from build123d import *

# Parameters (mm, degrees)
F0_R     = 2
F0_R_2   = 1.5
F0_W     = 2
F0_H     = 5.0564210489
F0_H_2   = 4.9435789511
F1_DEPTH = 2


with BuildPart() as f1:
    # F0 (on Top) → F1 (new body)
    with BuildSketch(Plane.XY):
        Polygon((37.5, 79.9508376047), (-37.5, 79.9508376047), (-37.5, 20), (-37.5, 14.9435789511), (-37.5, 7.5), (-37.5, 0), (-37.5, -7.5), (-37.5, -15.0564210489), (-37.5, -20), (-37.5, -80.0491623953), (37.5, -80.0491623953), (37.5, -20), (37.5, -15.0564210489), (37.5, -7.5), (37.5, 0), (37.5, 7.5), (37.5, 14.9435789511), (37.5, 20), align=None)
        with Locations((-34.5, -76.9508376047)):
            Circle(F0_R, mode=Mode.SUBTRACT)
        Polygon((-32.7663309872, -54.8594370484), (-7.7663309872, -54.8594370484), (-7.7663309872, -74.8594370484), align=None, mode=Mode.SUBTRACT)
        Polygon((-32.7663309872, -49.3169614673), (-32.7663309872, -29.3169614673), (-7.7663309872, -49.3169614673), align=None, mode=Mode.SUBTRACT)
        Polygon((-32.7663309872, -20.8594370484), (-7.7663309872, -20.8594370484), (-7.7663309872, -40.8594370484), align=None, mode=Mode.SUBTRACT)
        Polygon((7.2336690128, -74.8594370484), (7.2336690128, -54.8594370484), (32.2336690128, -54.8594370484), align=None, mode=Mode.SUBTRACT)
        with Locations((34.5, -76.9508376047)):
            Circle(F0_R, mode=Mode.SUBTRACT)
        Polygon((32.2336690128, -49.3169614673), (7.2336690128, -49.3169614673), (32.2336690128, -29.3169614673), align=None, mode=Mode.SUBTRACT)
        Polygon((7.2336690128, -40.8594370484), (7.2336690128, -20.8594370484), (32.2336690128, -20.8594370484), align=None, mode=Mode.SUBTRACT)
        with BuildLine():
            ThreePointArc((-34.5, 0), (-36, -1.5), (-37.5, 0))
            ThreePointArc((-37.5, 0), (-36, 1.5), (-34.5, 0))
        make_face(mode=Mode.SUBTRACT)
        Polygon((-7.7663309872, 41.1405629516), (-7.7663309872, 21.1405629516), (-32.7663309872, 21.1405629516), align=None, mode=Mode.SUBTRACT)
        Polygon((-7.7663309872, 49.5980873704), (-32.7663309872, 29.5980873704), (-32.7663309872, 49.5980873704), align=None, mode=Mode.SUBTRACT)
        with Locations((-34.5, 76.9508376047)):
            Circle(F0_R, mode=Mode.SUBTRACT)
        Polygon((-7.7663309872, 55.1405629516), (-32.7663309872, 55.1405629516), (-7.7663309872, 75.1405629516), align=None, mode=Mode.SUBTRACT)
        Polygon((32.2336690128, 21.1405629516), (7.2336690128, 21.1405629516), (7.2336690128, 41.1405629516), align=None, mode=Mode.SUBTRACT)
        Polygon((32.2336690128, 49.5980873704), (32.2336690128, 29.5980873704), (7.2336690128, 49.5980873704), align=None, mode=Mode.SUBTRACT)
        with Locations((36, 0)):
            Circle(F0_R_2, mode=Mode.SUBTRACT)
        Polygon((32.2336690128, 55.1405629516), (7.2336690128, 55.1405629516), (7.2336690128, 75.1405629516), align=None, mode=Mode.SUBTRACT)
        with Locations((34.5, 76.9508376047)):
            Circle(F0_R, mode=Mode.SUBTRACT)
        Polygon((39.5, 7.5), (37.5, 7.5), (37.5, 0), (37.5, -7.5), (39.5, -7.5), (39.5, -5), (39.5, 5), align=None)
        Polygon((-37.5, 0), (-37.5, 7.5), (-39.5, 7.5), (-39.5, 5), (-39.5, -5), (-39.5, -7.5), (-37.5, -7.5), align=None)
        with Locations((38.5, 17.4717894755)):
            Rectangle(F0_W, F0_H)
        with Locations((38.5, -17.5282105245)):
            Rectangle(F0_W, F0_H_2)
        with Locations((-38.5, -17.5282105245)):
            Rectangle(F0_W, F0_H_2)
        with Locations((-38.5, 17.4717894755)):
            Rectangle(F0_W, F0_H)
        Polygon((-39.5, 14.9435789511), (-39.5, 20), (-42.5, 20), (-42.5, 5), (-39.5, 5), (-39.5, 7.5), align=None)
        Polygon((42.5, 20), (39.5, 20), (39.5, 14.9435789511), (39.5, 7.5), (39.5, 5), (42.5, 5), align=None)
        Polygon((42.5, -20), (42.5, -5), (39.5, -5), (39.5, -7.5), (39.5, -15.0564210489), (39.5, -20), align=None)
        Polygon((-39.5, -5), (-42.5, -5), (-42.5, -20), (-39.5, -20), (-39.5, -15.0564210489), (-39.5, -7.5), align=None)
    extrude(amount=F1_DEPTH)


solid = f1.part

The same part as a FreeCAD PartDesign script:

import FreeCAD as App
import Part
import Sketcher

V = App.Vector
Q = App.Units.Quantity


def add_polygon(sketch, points):
    """Adds a closed chain of lines whose ends are joined by coincident constraints."""
    first, n = sketch.GeometryCount, len(points)
    for a, b in zip(points, points[1:] + points[:1]):
        sketch.addGeometry(Part.LineSegment(App.Vector(*a, 0), App.Vector(*b, 0)), False)
    for i in range(n):
        sketch.addConstraint(Sketcher.Constraint("Coincident", first + i, 2, first + (i + 1) % n, 1))

doc = App.newDocument("Part")
params = doc.addObject("Spreadsheet::Sheet", "Params")
for row, (alias, value) in enumerate([
    ("sketch1_diameter", "4 mm"),
    ("sketch1_diameter2", "3 mm"),
    ("sketch1_width", "75 mm"),
    ("sketch1_width2", "2 mm"),
    ("sketch1_width3", "3 mm"),
    ("pad1_length", "2 mm"),
], start=1):
    params.set(f"A{row}", alias)
    params.set(f"B{row}", "=" + value)
    params.setAlias(f"B{row}", alias)

body = doc.addObject("PartDesign::Body", "Body")

# Sketch on XY plane
sketch1 = body.newObject("Sketcher::SketchObject", "Sketch")
sketch1.AttachmentSupport = (doc.getObject("XY_Plane"), [""])
sketch1.MapMode = "FlatFace"
add_polygon(sketch1, [(37.5, 80), (-37.5, 80), (-37.5, 20), (-39.5, 20), (-42.5, 20), (-42.5, 5), (-39.5, 5), (-39.5, -5), (-42.5, -5), (-42.5, -20), (-39.5, -20), (-37.5, -20), (-37.5, -80), (37.5, -80), (37.5, -20), (39.5, -20), (42.5, -20), (42.5, -5), (39.5, -5), (39.5, 5), (42.5, 5), (42.5, 20), (39.5, 20), (37.5, 20)])  # lines 0-23
add_polygon(sketch1, [(-39.5, -7.5), (-37.5, -7.5), (-37.5, -15.1), (-39.5, -15.1)])  # lines 24-27
add_polygon(sketch1, [(39.5, -15.1), (37.5, -15.1), (37.5, -7.5), (39.5, -7.5)])  # lines 28-31
add_polygon(sketch1, [(39.5, 7.5), (37.5, 7.5), (37.5, 14.9), (39.5, 14.9)])  # lines 32-35
add_polygon(sketch1, [(-39.5, 14.9), (-37.5, 14.9), (-37.5, 7.5), (-39.5, 7.5)])  # lines 36-39
sketch1.addGeometry(Part.Circle(V(-34.5, -77, 0), V(0, 0, 1), 2), False)  # 40
add_polygon(sketch1, [(-7.8, -74.9), (-32.8, -54.9), (-7.8, -54.9)])  # lines 41-43
add_polygon(sketch1, [(-7.8, -49.3), (-32.8, -49.3), (-32.8, -29.3)])  # lines 44-46
add_polygon(sketch1, [(-7.8, -40.9), (-32.8, -20.9), (-7.8, -20.9)])  # lines 47-49
add_polygon(sketch1, [(32.2, -54.9), (7.2, -74.9), (7.2, -54.9)])  # lines 50-52
sketch1.addGeometry(Part.Circle(V(34.5, -77, 0), V(0, 0, 1), 2), False)  # 53
add_polygon(sketch1, [(32.2, -29.3), (32.2, -49.3), (7.2, -49.3)])  # lines 54-56
add_polygon(sketch1, [(32.2, -20.9), (7.2, -40.9), (7.2, -20.9)])  # lines 57-59
sketch1.addGeometry(Part.Circle(V(-36, 0, 0), V(0, 0, 1), 1.5), False)  # 60
add_polygon(sketch1, [(-32.8, 21.1), (-7.8, 41.1), (-7.8, 21.1)])  # lines 61-63
add_polygon(sketch1, [(-32.8, 49.6), (-7.8, 49.6), (-32.8, 29.6)])  # lines 64-66
sketch1.addGeometry(Part.Circle(V(-34.5, 77, 0), V(0, 0, 1), 2), False)  # 67
add_polygon(sketch1, [(-7.8, 75.1), (-7.8, 55.1), (-32.8, 55.1)])  # lines 68-70
sketch1.addGeometry(Part.Circle(V(36, 0, 0), V(0, 0, 1), 1.5), False)  # 71
add_polygon(sketch1, [(7.2, 41.1), (32.2, 21.1), (7.2, 21.1)])  # lines 72-74
add_polygon(sketch1, [(7.2, 49.6), (32.2, 49.6), (32.2, 29.6)])  # lines 75-77
add_polygon(sketch1, [(7.2, 75.1), (32.2, 55.1), (7.2, 55.1)])  # lines 78-80
sketch1.addGeometry(Part.Circle(V(34.5, 77, 0), V(0, 0, 1), 2), False)  # 81
sketch1.addConstraint(Sketcher.Constraint("Horizontal", 0))
sketch1.addConstraint(Sketcher.Constraint("Vertical", 1))
sketch1.addConstraint(Sketcher.Constraint("Horizontal", 2))
sketch1.addConstraint(Sketcher.Constraint("Horizontal", 3))
sketch1.addConstraint(Sketcher.Constraint("Vertical", 4))
sketch1.addConstraint(Sketcher.Constraint("Horizontal", 5))
sketch1.addConstraint(Sketcher.Constraint("Vertical", 6))
sketch1.addConstraint(Sketcher.Constraint("Horizontal", 7))
sketch1.addConstraint(Sketcher.Constraint("Vertical", 8))
sketch1.addConstraint(Sketcher.Constraint("Horizontal", 9))
sketch1.addConstraint(Sketcher.Constraint("Horizontal", 10))
sketch1.addConstraint(Sketcher.Constraint("Vertical", 11))
sketch1.addConstraint(Sketcher.Constraint("Horizontal", 12))
sketch1.addConstraint(Sketcher.Constraint("Vertical", 13))
sketch1.addConstraint(Sketcher.Constraint("Horizontal", 14))
sketch1.addConstraint(Sketcher.Constraint("Horizontal", 15))
sketch1.addConstraint(Sketcher.Constraint("Vertical", 16))
sketch1.addConstraint(Sketcher.Constraint("Horizontal", 17))
sketch1.addConstraint(Sketcher.Constraint("Vertical", 18))
sketch1.addConstraint(Sketcher.Constraint("Horizontal", 19))
sketch1.addConstraint(Sketcher.Constraint("Vertical", 20))
sketch1.addConstraint(Sketcher.Constraint("Horizontal", 21))
sketch1.addConstraint(Sketcher.Constraint("Horizontal", 22))
sketch1.addConstraint(Sketcher.Constraint("Vertical", 23))
sketch1.addConstraint(Sketcher.Constraint("Horizontal", 24))
sketch1.addConstraint(Sketcher.Constraint("Vertical", 25))
sketch1.addConstraint(Sketcher.Constraint("Horizontal", 26))
sketch1.addConstraint(Sketcher.Constraint("Vertical", 27))
sketch1.addConstraint(Sketcher.Constraint("Horizontal", 28))
sketch1.addConstraint(Sketcher.Constraint("Vertical", 29))
sketch1.addConstraint(Sketcher.Constraint("Horizontal", 30))
sketch1.addConstraint(Sketcher.Constraint("Vertical", 31))
sketch1.addConstraint(Sketcher.Constraint("Horizontal", 32))
sketch1.addConstraint(Sketcher.Constraint("Vertical", 33))
sketch1.addConstraint(Sketcher.Constraint("Horizontal", 34))
sketch1.addConstraint(Sketcher.Constraint("Vertical", 35))
sketch1.addConstraint(Sketcher.Constraint("Horizontal", 36))
sketch1.addConstraint(Sketcher.Constraint("Vertical", 37))
sketch1.addConstraint(Sketcher.Constraint("Horizontal", 38))
sketch1.addConstraint(Sketcher.Constraint("Vertical", 39))
sketch1.addConstraint(Sketcher.Constraint("Horizontal", 42))
sketch1.addConstraint(Sketcher.Constraint("Vertical", 43))
sketch1.addConstraint(Sketcher.Constraint("Horizontal", 44))
sketch1.addConstraint(Sketcher.Constraint("Vertical", 45))
sketch1.addConstraint(Sketcher.Constraint("Horizontal", 48))
sketch1.addConstraint(Sketcher.Constraint("Vertical", 49))
sketch1.addConstraint(Sketcher.Constraint("Vertical", 51))
sketch1.addConstraint(Sketcher.Constraint("Horizontal", 52))
sketch1.addConstraint(Sketcher.Constraint("Vertical", 54))
sketch1.addConstraint(Sketcher.Constraint("Horizontal", 55))
sketch1.addConstraint(Sketcher.Constraint("Vertical", 58))
sketch1.addConstraint(Sketcher.Constraint("Horizontal", 59))
sketch1.addConstraint(Sketcher.Constraint("Vertical", 62))
sketch1.addConstraint(Sketcher.Constraint("Horizontal", 63))
sketch1.addConstraint(Sketcher.Constraint("Horizontal", 64))
sketch1.addConstraint(Sketcher.Constraint("Vertical", 66))
sketch1.addConstraint(Sketcher.Constraint("Vertical", 68))
sketch1.addConstraint(Sketcher.Constraint("Horizontal", 69))
sketch1.addConstraint(Sketcher.Constraint("Horizontal", 73))
sketch1.addConstraint(Sketcher.Constraint("Vertical", 74))
sketch1.addConstraint(Sketcher.Constraint("Horizontal", 75))
sketch1.addConstraint(Sketcher.Constraint("Vertical", 76))
sketch1.addConstraint(Sketcher.Constraint("Horizontal", 79))
sketch1.addConstraint(Sketcher.Constraint("Vertical", 80))
sketch1.addConstraint(Sketcher.Constraint("Equal", 40, 53))
sketch1.addConstraint(Sketcher.Constraint("Equal", 53, 67))
sketch1.addConstraint(Sketcher.Constraint("Equal", 60, 71))
sketch1.addConstraint(Sketcher.Constraint("Equal", 67, 81))
sketch1.addConstraint(Sketcher.Constraint("Symmetric", 53, 3, 67, 3, -1, 1))
sketch1.addConstraint(Sketcher.Constraint("Symmetric", 60, 3, 71, 3, -1, 1))
sketch1.addConstraint(Sketcher.Constraint("Symmetric", 40, 3, 81, 3, -1, 1))
sketch1.addConstraint(Sketcher.Constraint("Symmetric", 1, 2, 13, 2, -1, 1))
sketch1.addConstraint(Sketcher.Constraint("Symmetric", 4, 2, 16, 2, -1, 1))
sketch1.addConstraint(Sketcher.Constraint("Symmetric", 6, 2, 18, 2, -1, 1))
sketch1.addConstraint(Sketcher.Constraint("Symmetric", 8, 2, 20, 2, -1, 1))
sketch1.addConstraint(Sketcher.Constraint("Symmetric", 24, 2, 32, 2, -1, 1))
sketch1.addConstraint(Sketcher.Constraint("Symmetric", 29, 2, 37, 2, -1, 1))
sketch1.addConstraint(Sketcher.Constraint("Symmetric", 40, 3, 53, 3, -2))
sketch1.addConstraint(Sketcher.Constraint("Symmetric", 10, 2, 13, 2, -2))
sketch1.addConstraint(Sketcher.Constraint("Symmetric", 7, 2, 16, 2, -2))
sketch1.addConstraint(Sketcher.Constraint("Symmetric", 25, 2, 28, 2, -2))
sketch1.addConstraint(Sketcher.Constraint("Symmetric", 27, 2, 30, 2, -2))
sketch1.addConstraint(Sketcher.Constraint("Symmetric", 34, 2, 39, 2, -2))
sketch1.addConstraint(Sketcher.Constraint("PointOnObject", 60, 3, -1))
sketch1.addConstraint(Sketcher.Constraint("Parallel", 41, 46))
sketch1.addConstraint(Sketcher.Constraint("Parallel", 46, 47))
sketch1.addConstraint(Sketcher.Constraint("Parallel", 50, 56))
sketch1.addConstraint(Sketcher.Constraint("Parallel", 56, 57))
sketch1.addConstraint(Sketcher.Constraint("Parallel", 57, 61))
sketch1.addConstraint(Sketcher.Constraint("Parallel", 61, 65))
sketch1.addConstraint(Sketcher.Constraint("Parallel", 65, 70))
sketch1.addConstraint(Sketcher.Constraint("Parallel", 47, 72))
sketch1.addConstraint(Sketcher.Constraint("Parallel", 72, 77))
sketch1.addConstraint(Sketcher.Constraint("Parallel", 77, 78))
sketch1.addConstraint(Sketcher.Constraint("Horizontal", 43, 2, 50, 2))
sketch1.addConstraint(Sketcher.Constraint("Horizontal", 42, 2, 51, 2))
sketch1.addConstraint(Sketcher.Constraint("Horizontal", 46, 2, 54, 2))
sketch1.addConstraint(Sketcher.Constraint("Horizontal", 45, 2, 56, 2))
sketch1.addConstraint(Sketcher.Constraint("Horizontal", 49, 2, 57, 2))
sketch1.addConstraint(Sketcher.Constraint("Horizontal", 48, 2, 58, 2))
sketch1.addConstraint(Sketcher.Constraint("Horizontal", 63, 2, 72, 2))
sketch1.addConstraint(Sketcher.Constraint("Horizontal", 61, 2, 74, 2))
sketch1.addConstraint(Sketcher.Constraint("Horizontal", 66, 2, 75, 2))
sketch1.addConstraint(Sketcher.Constraint("Horizontal", 65, 2, 76, 2))
sketch1.addConstraint(Sketcher.Constraint("Horizontal", 69, 2, 78, 2))
sketch1.addConstraint(Sketcher.Constraint("Horizontal", 70, 2, 80, 2))
sketch1.addConstraint(Sketcher.Constraint("Vertical", 2, 2, 5, 2))
sketch1.addConstraint(Sketcher.Constraint("Vertical", 6, 2, 9, 2))
sketch1.addConstraint(Sketcher.Constraint("Vertical", 14, 2, 17, 2))
sketch1.addConstraint(Sketcher.Constraint("Vertical", 18, 2, 21, 2))
sketch1.addConstraint(Sketcher.Constraint("Vertical", 13, 2, 22, 2))
sketch1.addConstraint(Sketcher.Constraint("Vertical", 11, 2, 24, 2))
sketch1.addConstraint(Sketcher.Constraint("Vertical", 9, 2, 26, 2))
sketch1.addConstraint(Sketcher.Constraint("Vertical", 31, 2, 34, 2))
sketch1.addConstraint(Sketcher.Constraint("Vertical", 41, 2, 44, 2))
sketch1.addConstraint(Sketcher.Constraint("Vertical", 43, 2, 46, 2))
sketch1.addConstraint(Sketcher.Constraint("Vertical", 45, 2, 47, 2))
sketch1.addConstraint(Sketcher.Constraint("Vertical", 46, 2, 48, 2))
sketch1.addConstraint(Sketcher.Constraint("Vertical", 52, 2, 54, 2))
sketch1.addConstraint(Sketcher.Constraint("Vertical", 55, 2, 57, 2))
sketch1.addConstraint(Sketcher.Constraint("Vertical", 49, 2, 61, 2))
sketch1.addConstraint(Sketcher.Constraint("Vertical", 47, 2, 63, 2))
sketch1.addConstraint(Sketcher.Constraint("Vertical", 62, 2, 64, 2))
sketch1.addConstraint(Sketcher.Constraint("Vertical", 63, 2, 65, 2))
sketch1.addConstraint(Sketcher.Constraint("Vertical", 64, 2, 68, 2))
sketch1.addConstraint(Sketcher.Constraint("Vertical", 66, 2, 69, 2))
sketch1.addConstraint(Sketcher.Constraint("Vertical", 59, 2, 72, 2))
sketch1.addConstraint(Sketcher.Constraint("Vertical", 58, 2, 73, 2))
sketch1.addConstraint(Sketcher.Constraint("Vertical", 72, 2, 75, 2))
sketch1.addConstraint(Sketcher.Constraint("Vertical", 76, 2, 78, 2))
sketch1.addConstraint(Sketcher.Constraint("Diameter", 40, Q("4 mm")))
sketch1.addConstraint(Sketcher.Constraint("Diameter", 60, Q("3 mm")))
sketch1.addConstraint(Sketcher.Constraint("DistanceX", 0, 2, 0, 1, Q("75 mm")))
sketch1.addConstraint(Sketcher.Constraint("DistanceX", 2, 2, 2, 1, Q("2 mm")))
sketch1.addConstraint(Sketcher.Constraint("DistanceX", 3, 2, 3, 1, Q("3 mm")))
sketch1.addConstraint(Sketcher.Constraint("DistanceX", 42, 1, 42, 2, Q("25 mm")))
sketch1.addConstraint(Sketcher.Constraint("DistanceY", 4, 2, 4, 1, Q("15 mm")))
sketch1.addConstraint(Sketcher.Constraint("DistanceY", 6, 2, 6, 1, Q("10 mm")))
sketch1.addConstraint(Sketcher.Constraint("DistanceY", 43, 2, 43, 1, Q("20 mm")))
sketch1.addConstraint(Sketcher.Constraint("DistanceX", 60, 3, -1, 1, Q("36 mm")))
sketch1.addConstraint(Sketcher.Constraint("DistanceX", 40, 3, -1, 1, Q("34.5 mm")))
sketch1.addConstraint(Sketcher.Constraint("DistanceY", 24, 2, -1, 1, Q("7.5 mm")))
sketch1.addConstraint(Sketcher.Constraint("DistanceY", 25, 2, 25, 1, Q("7.556421 mm")))
sketch1.addConstraint(Sketcher.Constraint("DistanceY", 33, 1, 33, 2, Q("7.443579 mm")))
sketch1.addConstraint(Sketcher.Constraint("DistanceY", 1, 2, 1, 1, Q("59.950838 mm")))
sketch1.addConstraint(Sketcher.Constraint("DistanceY", 11, 2, 11, 1, Q("60.049162 mm")))
sketch1.addConstraint(Sketcher.Constraint("DistanceX", 41, 2, -1, 1, Q("32.766331 mm")))
sketch1.addConstraint(Sketcher.Constraint("DistanceY", 44, 2, -1, 1, Q("49.316961 mm")))
sketch1.addConstraint(Sketcher.Constraint("DistanceX", -1, 1, 50, 2, Q("7.233669 mm")))
sketch1.addConstraint(Sketcher.Constraint("DistanceY", 40, 3, -1, 1, Q("76.950838 mm")))
sketch1.addConstraint(Sketcher.Constraint("DistanceY", 41, 2, -1, 1, Q("54.859437 mm")))
sketch1.addConstraint(Sketcher.Constraint("DistanceY", 47, 2, -1, 1, Q("20.859437 mm")))
sketch1.addConstraint(Sketcher.Constraint("DistanceY", -1, 1, 61, 2, Q("41.140563 mm")))
sketch1.addConstraint(Sketcher.Constraint("DistanceY", -1, 1, 64, 2, Q("49.598087 mm")))
sketch1.addConstraint(Sketcher.Constraint("DistanceY", -1, 1, 68, 2, Q("55.140563 mm")))
sketch1.setExpression("Constraints[206]", "Params.sketch1_diameter")
sketch1.setExpression("Constraints[207]", "Params.sketch1_diameter2")
sketch1.setExpression("Constraints[208]", "Params.sketch1_width")
sketch1.setExpression("Constraints[209]", "Params.sketch1_width2")
sketch1.setExpression("Constraints[210]", "Params.sketch1_width3")
pad1 = body.newObject("PartDesign::Pad", "Pad")
pad1.Profile = sketch1
pad1.setExpression("Length", "Params.pad1_length")

doc.recompute()
